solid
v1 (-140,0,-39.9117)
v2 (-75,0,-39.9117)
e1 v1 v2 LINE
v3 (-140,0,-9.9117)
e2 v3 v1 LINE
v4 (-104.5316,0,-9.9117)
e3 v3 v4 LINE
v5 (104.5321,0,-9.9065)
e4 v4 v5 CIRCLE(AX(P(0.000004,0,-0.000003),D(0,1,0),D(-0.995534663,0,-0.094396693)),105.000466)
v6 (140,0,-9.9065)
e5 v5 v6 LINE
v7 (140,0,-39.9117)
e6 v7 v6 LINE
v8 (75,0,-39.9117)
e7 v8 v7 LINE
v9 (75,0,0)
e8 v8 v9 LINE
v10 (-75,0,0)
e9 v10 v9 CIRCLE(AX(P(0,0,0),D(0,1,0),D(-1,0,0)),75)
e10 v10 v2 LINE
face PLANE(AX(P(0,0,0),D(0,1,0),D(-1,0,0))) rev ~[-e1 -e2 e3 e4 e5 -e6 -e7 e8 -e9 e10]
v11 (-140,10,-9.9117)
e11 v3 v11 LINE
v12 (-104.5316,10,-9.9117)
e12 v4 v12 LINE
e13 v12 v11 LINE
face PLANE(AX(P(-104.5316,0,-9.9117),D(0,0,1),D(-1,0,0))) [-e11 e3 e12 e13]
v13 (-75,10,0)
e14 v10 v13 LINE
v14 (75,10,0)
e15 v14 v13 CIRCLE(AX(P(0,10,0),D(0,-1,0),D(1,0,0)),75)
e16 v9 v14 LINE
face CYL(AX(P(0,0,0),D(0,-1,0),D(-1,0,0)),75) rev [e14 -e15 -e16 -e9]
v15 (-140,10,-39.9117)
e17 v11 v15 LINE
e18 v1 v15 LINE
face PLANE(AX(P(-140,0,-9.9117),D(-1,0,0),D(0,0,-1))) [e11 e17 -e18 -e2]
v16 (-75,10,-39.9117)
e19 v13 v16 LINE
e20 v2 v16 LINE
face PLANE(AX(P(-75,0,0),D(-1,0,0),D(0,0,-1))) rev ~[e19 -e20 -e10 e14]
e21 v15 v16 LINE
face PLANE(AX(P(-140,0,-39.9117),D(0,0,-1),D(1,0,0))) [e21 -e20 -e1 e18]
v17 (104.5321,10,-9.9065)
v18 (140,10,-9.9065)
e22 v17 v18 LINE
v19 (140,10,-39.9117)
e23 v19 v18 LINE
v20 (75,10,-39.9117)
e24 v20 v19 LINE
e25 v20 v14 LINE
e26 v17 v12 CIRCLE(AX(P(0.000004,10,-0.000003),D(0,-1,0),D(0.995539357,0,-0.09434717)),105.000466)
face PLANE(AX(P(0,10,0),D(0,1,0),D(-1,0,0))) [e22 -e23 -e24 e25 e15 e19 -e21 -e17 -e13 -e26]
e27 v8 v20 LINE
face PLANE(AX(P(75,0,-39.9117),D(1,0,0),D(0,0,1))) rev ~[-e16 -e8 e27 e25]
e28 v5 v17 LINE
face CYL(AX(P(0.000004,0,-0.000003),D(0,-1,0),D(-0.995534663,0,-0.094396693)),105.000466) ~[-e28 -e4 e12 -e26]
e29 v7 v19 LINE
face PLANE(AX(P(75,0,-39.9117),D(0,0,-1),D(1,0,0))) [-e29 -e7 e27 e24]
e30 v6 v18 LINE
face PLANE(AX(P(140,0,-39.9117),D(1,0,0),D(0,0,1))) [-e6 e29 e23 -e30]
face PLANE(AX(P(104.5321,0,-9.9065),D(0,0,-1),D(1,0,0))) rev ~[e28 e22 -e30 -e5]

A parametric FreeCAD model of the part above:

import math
import FreeCAD as App
import Part
import Sketcher

V = App.Vector

doc = App.newDocument("Part")
body = doc.addObject("PartDesign::Body", "Body")

# Sketch on XZ plane
sketch1 = body.newObject("Sketcher::SketchObject", "Sketch")
sketch1.AttachmentSupport = (doc.getObject("XZ_Plane"), [""])
sketch1.MapMode = "FlatFace"
sketch1.addGeometry([
    Part.ArcOfCircle(Part.Circle(V(0, 0, 0), V(0, 0, 1), 105), math.radians(-5), math.radians(185)),  # 0
    Part.LineSegment(V(105, -10, 0), V(140, -10, 0)),  # 1
    Part.LineSegment(V(140, -10, 0), V(140, -40, 0)),  # 2
    Part.LineSegment(V(140, -40, 0), V(75, -40, 0)),  # 3
    Part.LineSegment(V(75, -40, 0), V(75, 0, 0)),  # 4
    Part.ArcOfCircle(Part.Circle(V(0, 0, 0), V(0, 0, 1), 75), math.radians(0), math.radians(180)),  # 5
    Part.LineSegment(V(-75, 0, 0), V(-75, -40, 0)),  # 6
    Part.LineSegment(V(-75, -40, 0), V(-140, -40, 0)),  # 7
    Part.LineSegment(V(-140, -40, 0), V(-140, -10, 0)),  # 8
    Part.LineSegment(V(-140, -10, 0), V(-105, -10, 0)),  # 9
], False)
sketch1.addConstraint([
    Sketcher.Constraint("Coincident", 0, 1, 1, 1),
    Sketcher.Constraint("Coincident", 1, 2, 2, 1),
    Sketcher.Constraint("Coincident", 2, 2, 3, 1),
    Sketcher.Constraint("Coincident", 3, 2, 4, 1),
    Sketcher.Constraint("Tangent", 4, 2, 5, 1),
    Sketcher.Constraint("Tangent", 5, 2, 6, 1),
    Sketcher.Constraint("Coincident", 6, 2, 7, 1),
    Sketcher.Constraint("Coincident", 7, 2, 8, 1),
    Sketcher.Constraint("Coincident", 8, 2, 9, 1),
    Sketcher.Constraint("Coincident", 9, 2, 0, 2),
    Sketcher.Constraint("Horizontal", 1),
    Sketcher.Constraint("Vertical", 2),
    Sketcher.Constraint("Horizontal", 3),
    Sketcher.Constraint("Vertical", 4),
    Sketcher.Constraint("Vertical", 6),
    Sketcher.Constraint("Horizontal", 7),
    Sketcher.Constraint("Vertical", 8),
    Sketcher.Constraint("Horizontal", 9),
    Sketcher.Constraint("Coincident", 0, 3, -1, 1),
    Sketcher.Constraint("Coincident", 5, 3, -1, 1),
    Sketcher.Constraint("Symmetric", 2, 2, 7, 2, -2),
    Sketcher.Constraint("DistanceY", 8, 1, 8, 2, 30.0),
    Sketcher.Constraint("DistanceX", -1, 1, 1, 2, 140.0),
    Sketcher.Constraint("Radius", 5, 75.0),
    Sketcher.Constraint("Radius", 0, 105.0005),
    Sketcher.Constraint("DistanceX", 1, 1, 1, 2, 35.468),
    Sketcher.Constraint("DistanceX", 9, 1, 9, 2, 35.4684),
])
pad1 = body.newObject("PartDesign::Pad", "Pad")
pad1.Profile = sketch1
pad1.Length = 10
pad1.Reversed = True

doc.recompute()
